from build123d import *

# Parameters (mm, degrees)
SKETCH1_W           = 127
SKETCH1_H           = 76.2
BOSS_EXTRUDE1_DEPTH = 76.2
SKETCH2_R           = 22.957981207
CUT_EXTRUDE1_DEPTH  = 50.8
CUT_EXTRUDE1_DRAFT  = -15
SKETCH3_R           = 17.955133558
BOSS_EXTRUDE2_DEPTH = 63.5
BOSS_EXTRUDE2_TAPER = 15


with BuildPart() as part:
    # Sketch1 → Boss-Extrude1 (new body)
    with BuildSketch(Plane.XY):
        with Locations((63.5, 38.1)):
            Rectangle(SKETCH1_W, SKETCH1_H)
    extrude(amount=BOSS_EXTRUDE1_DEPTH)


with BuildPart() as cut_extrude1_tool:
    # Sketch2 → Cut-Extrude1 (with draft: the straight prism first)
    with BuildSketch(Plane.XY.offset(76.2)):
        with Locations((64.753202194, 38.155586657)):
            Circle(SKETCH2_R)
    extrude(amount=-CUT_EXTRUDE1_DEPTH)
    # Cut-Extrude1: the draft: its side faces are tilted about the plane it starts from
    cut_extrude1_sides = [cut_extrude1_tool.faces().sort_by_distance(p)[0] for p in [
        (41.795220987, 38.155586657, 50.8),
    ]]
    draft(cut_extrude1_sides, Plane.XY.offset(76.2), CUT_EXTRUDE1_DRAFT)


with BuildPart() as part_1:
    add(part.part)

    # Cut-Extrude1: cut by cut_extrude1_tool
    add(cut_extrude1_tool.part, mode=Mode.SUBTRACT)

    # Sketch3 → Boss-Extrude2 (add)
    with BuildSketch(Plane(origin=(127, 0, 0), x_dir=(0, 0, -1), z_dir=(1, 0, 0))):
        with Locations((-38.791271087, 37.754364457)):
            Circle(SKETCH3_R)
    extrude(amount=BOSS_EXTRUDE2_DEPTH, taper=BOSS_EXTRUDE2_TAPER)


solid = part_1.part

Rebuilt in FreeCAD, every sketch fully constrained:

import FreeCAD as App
import Part
import Sketcher

V = App.Vector
Q = App.Units.Quantity


def faces_at(feature, points):
    """Names of the faces that lie closest to the given points."""
    faces = feature.Shape.Faces
    near = lambda p: min(range(len(faces)), key=lambda i: faces[i].distToShape(Part.Vertex(*p))[0])
    return sorted({f"Face{near(p) + 1}" for p in points})


def add_polygon(sketch, points):
    """Adds a closed chain of lines whose ends are joined by coincident constraints."""
    first, n = sketch.GeometryCount, len(points)
    for a, b in zip(points, points[1:] + points[:1]):
        sketch.addGeometry(Part.LineSegment(App.Vector(*a, 0), App.Vector(*b, 0)), False)
    for i in range(n):
        sketch.addConstraint(Sketcher.Constraint("Coincident", first + i, 2, first + (i + 1) % n, 1))

doc = App.newDocument("Part")
body = doc.addObject("PartDesign::Body", "Body")

# Sketch on XY plane
sketch1 = body.newObject("Sketcher::SketchObject", "Sketch")
sketch1.AttachmentSupport = (doc.getObject("XY_Plane"), [""])
sketch1.MapMode = "FlatFace"
add_polygon(sketch1, [(0, 76), (0, 0), (127, 0), (127, 76)])  # lines 0-3
sketch1.addConstraint([
    Sketcher.Constraint("Vertical", 0),
    Sketcher.Constraint("Horizontal", 1),
    Sketcher.Constraint("Vertical", 2),
    Sketcher.Constraint("Horizontal", 3),
    Sketcher.Constraint("Coincident", 0, 2, -1, 1),
    Sketcher.Constraint("DistanceX", 1, 1, 1, 2, Q("5 in")),
    Sketcher.Constraint("DistanceY", 0, 2, 0, 1, Q("3 in")),
])
pad1 = body.newObject("PartDesign::Pad", "Pad")
pad1.Profile = sketch1
pad1.Length = Q("3 in")
body2 = doc.addObject("PartDesign::Body", "Body001")

# Sketch on XY plane
sketch2 = body2.newObject("Sketcher::SketchObject", "Sketch001")
sketch2.AttachmentSupport = (doc.getObject("XY_Plane001"), [""])
sketch2.MapMode = "FlatFace"
sketch2.AttachmentOffset = App.Placement(V(0, 0, 3 * 25.4), App.Rotation())
sketch2.addGeometry(Part.Circle(V(65, 38, 0), V(0, 0, 1), 23), False)
sketch2.addConstraint([
    Sketcher.Constraint("Diameter", 0, Q("45.915962 mm")),
    Sketcher.Constraint("DistanceX", -1, 1, 0, 3, Q("64.753202 mm")),
    Sketcher.Constraint("DistanceY", -1, 1, 0, 3, Q("38.155587 mm")),
])
pad2 = body2.newObject("PartDesign::Pad", "Pad001")
pad2.Profile = sketch2
pad2.Length = Q("2 in")
pad2.Reversed = True
doc.recompute()

datumplane = body2.newObject("PartDesign::Plane", "DatumPlane")
datumplane.AttachmentSupport = (doc.getObject("XY_Plane001"), [""])
datumplane.MapMode = "FlatFace"
datumplane.AttachmentOffset = App.Placement(V(0, 0, 3 * 25.4), App.Rotation())
draft = body2.newObject("PartDesign::Draft", "Draft")
draft.Base = (pad2, faces_at(pad2, [(41.795, 38.156, 50.8)]))
draft.NeutralPlane = (datumplane, [""])
draft.Angle = 15
draft.Reversed = True
doc.recompute()

boolean = body.newObject("PartDesign::Boolean", "Boolean")
boolean.Type = "Cut"
boolean.addObjects([body2])

# Sketch on YZ plane
sketch3 = body.newObject("Sketcher::SketchObject", "Sketch002")
sketch3.AttachmentSupport = (doc.getObject("YZ_Plane"), [""])
sketch3.MapMode = "FlatFace"
sketch3.AttachmentOffset = App.Placement(V(0, 0, 5 * 25.4), App.Rotation())
sketch3.addGeometry(Part.Circle(V(38, 39, 0), V(0, 0, 1), 18), False)
sketch3.addConstraint([
    Sketcher.Constraint("Diameter", 0, Q("35.910267 mm")),
    Sketcher.Constraint("DistanceY", -1, 1, 0, 3, Q("38.791271 mm")),
    Sketcher.Constraint("DistanceX", -1, 1, 0, 3, Q("37.754364 mm")),
])
pad3 = body.newObject("PartDesign::Pad", "Pad002")
pad3.Profile = sketch3
pad3.Length = Q("2.5 in")
pad3.TaperAngle = -15

doc.recompute()
